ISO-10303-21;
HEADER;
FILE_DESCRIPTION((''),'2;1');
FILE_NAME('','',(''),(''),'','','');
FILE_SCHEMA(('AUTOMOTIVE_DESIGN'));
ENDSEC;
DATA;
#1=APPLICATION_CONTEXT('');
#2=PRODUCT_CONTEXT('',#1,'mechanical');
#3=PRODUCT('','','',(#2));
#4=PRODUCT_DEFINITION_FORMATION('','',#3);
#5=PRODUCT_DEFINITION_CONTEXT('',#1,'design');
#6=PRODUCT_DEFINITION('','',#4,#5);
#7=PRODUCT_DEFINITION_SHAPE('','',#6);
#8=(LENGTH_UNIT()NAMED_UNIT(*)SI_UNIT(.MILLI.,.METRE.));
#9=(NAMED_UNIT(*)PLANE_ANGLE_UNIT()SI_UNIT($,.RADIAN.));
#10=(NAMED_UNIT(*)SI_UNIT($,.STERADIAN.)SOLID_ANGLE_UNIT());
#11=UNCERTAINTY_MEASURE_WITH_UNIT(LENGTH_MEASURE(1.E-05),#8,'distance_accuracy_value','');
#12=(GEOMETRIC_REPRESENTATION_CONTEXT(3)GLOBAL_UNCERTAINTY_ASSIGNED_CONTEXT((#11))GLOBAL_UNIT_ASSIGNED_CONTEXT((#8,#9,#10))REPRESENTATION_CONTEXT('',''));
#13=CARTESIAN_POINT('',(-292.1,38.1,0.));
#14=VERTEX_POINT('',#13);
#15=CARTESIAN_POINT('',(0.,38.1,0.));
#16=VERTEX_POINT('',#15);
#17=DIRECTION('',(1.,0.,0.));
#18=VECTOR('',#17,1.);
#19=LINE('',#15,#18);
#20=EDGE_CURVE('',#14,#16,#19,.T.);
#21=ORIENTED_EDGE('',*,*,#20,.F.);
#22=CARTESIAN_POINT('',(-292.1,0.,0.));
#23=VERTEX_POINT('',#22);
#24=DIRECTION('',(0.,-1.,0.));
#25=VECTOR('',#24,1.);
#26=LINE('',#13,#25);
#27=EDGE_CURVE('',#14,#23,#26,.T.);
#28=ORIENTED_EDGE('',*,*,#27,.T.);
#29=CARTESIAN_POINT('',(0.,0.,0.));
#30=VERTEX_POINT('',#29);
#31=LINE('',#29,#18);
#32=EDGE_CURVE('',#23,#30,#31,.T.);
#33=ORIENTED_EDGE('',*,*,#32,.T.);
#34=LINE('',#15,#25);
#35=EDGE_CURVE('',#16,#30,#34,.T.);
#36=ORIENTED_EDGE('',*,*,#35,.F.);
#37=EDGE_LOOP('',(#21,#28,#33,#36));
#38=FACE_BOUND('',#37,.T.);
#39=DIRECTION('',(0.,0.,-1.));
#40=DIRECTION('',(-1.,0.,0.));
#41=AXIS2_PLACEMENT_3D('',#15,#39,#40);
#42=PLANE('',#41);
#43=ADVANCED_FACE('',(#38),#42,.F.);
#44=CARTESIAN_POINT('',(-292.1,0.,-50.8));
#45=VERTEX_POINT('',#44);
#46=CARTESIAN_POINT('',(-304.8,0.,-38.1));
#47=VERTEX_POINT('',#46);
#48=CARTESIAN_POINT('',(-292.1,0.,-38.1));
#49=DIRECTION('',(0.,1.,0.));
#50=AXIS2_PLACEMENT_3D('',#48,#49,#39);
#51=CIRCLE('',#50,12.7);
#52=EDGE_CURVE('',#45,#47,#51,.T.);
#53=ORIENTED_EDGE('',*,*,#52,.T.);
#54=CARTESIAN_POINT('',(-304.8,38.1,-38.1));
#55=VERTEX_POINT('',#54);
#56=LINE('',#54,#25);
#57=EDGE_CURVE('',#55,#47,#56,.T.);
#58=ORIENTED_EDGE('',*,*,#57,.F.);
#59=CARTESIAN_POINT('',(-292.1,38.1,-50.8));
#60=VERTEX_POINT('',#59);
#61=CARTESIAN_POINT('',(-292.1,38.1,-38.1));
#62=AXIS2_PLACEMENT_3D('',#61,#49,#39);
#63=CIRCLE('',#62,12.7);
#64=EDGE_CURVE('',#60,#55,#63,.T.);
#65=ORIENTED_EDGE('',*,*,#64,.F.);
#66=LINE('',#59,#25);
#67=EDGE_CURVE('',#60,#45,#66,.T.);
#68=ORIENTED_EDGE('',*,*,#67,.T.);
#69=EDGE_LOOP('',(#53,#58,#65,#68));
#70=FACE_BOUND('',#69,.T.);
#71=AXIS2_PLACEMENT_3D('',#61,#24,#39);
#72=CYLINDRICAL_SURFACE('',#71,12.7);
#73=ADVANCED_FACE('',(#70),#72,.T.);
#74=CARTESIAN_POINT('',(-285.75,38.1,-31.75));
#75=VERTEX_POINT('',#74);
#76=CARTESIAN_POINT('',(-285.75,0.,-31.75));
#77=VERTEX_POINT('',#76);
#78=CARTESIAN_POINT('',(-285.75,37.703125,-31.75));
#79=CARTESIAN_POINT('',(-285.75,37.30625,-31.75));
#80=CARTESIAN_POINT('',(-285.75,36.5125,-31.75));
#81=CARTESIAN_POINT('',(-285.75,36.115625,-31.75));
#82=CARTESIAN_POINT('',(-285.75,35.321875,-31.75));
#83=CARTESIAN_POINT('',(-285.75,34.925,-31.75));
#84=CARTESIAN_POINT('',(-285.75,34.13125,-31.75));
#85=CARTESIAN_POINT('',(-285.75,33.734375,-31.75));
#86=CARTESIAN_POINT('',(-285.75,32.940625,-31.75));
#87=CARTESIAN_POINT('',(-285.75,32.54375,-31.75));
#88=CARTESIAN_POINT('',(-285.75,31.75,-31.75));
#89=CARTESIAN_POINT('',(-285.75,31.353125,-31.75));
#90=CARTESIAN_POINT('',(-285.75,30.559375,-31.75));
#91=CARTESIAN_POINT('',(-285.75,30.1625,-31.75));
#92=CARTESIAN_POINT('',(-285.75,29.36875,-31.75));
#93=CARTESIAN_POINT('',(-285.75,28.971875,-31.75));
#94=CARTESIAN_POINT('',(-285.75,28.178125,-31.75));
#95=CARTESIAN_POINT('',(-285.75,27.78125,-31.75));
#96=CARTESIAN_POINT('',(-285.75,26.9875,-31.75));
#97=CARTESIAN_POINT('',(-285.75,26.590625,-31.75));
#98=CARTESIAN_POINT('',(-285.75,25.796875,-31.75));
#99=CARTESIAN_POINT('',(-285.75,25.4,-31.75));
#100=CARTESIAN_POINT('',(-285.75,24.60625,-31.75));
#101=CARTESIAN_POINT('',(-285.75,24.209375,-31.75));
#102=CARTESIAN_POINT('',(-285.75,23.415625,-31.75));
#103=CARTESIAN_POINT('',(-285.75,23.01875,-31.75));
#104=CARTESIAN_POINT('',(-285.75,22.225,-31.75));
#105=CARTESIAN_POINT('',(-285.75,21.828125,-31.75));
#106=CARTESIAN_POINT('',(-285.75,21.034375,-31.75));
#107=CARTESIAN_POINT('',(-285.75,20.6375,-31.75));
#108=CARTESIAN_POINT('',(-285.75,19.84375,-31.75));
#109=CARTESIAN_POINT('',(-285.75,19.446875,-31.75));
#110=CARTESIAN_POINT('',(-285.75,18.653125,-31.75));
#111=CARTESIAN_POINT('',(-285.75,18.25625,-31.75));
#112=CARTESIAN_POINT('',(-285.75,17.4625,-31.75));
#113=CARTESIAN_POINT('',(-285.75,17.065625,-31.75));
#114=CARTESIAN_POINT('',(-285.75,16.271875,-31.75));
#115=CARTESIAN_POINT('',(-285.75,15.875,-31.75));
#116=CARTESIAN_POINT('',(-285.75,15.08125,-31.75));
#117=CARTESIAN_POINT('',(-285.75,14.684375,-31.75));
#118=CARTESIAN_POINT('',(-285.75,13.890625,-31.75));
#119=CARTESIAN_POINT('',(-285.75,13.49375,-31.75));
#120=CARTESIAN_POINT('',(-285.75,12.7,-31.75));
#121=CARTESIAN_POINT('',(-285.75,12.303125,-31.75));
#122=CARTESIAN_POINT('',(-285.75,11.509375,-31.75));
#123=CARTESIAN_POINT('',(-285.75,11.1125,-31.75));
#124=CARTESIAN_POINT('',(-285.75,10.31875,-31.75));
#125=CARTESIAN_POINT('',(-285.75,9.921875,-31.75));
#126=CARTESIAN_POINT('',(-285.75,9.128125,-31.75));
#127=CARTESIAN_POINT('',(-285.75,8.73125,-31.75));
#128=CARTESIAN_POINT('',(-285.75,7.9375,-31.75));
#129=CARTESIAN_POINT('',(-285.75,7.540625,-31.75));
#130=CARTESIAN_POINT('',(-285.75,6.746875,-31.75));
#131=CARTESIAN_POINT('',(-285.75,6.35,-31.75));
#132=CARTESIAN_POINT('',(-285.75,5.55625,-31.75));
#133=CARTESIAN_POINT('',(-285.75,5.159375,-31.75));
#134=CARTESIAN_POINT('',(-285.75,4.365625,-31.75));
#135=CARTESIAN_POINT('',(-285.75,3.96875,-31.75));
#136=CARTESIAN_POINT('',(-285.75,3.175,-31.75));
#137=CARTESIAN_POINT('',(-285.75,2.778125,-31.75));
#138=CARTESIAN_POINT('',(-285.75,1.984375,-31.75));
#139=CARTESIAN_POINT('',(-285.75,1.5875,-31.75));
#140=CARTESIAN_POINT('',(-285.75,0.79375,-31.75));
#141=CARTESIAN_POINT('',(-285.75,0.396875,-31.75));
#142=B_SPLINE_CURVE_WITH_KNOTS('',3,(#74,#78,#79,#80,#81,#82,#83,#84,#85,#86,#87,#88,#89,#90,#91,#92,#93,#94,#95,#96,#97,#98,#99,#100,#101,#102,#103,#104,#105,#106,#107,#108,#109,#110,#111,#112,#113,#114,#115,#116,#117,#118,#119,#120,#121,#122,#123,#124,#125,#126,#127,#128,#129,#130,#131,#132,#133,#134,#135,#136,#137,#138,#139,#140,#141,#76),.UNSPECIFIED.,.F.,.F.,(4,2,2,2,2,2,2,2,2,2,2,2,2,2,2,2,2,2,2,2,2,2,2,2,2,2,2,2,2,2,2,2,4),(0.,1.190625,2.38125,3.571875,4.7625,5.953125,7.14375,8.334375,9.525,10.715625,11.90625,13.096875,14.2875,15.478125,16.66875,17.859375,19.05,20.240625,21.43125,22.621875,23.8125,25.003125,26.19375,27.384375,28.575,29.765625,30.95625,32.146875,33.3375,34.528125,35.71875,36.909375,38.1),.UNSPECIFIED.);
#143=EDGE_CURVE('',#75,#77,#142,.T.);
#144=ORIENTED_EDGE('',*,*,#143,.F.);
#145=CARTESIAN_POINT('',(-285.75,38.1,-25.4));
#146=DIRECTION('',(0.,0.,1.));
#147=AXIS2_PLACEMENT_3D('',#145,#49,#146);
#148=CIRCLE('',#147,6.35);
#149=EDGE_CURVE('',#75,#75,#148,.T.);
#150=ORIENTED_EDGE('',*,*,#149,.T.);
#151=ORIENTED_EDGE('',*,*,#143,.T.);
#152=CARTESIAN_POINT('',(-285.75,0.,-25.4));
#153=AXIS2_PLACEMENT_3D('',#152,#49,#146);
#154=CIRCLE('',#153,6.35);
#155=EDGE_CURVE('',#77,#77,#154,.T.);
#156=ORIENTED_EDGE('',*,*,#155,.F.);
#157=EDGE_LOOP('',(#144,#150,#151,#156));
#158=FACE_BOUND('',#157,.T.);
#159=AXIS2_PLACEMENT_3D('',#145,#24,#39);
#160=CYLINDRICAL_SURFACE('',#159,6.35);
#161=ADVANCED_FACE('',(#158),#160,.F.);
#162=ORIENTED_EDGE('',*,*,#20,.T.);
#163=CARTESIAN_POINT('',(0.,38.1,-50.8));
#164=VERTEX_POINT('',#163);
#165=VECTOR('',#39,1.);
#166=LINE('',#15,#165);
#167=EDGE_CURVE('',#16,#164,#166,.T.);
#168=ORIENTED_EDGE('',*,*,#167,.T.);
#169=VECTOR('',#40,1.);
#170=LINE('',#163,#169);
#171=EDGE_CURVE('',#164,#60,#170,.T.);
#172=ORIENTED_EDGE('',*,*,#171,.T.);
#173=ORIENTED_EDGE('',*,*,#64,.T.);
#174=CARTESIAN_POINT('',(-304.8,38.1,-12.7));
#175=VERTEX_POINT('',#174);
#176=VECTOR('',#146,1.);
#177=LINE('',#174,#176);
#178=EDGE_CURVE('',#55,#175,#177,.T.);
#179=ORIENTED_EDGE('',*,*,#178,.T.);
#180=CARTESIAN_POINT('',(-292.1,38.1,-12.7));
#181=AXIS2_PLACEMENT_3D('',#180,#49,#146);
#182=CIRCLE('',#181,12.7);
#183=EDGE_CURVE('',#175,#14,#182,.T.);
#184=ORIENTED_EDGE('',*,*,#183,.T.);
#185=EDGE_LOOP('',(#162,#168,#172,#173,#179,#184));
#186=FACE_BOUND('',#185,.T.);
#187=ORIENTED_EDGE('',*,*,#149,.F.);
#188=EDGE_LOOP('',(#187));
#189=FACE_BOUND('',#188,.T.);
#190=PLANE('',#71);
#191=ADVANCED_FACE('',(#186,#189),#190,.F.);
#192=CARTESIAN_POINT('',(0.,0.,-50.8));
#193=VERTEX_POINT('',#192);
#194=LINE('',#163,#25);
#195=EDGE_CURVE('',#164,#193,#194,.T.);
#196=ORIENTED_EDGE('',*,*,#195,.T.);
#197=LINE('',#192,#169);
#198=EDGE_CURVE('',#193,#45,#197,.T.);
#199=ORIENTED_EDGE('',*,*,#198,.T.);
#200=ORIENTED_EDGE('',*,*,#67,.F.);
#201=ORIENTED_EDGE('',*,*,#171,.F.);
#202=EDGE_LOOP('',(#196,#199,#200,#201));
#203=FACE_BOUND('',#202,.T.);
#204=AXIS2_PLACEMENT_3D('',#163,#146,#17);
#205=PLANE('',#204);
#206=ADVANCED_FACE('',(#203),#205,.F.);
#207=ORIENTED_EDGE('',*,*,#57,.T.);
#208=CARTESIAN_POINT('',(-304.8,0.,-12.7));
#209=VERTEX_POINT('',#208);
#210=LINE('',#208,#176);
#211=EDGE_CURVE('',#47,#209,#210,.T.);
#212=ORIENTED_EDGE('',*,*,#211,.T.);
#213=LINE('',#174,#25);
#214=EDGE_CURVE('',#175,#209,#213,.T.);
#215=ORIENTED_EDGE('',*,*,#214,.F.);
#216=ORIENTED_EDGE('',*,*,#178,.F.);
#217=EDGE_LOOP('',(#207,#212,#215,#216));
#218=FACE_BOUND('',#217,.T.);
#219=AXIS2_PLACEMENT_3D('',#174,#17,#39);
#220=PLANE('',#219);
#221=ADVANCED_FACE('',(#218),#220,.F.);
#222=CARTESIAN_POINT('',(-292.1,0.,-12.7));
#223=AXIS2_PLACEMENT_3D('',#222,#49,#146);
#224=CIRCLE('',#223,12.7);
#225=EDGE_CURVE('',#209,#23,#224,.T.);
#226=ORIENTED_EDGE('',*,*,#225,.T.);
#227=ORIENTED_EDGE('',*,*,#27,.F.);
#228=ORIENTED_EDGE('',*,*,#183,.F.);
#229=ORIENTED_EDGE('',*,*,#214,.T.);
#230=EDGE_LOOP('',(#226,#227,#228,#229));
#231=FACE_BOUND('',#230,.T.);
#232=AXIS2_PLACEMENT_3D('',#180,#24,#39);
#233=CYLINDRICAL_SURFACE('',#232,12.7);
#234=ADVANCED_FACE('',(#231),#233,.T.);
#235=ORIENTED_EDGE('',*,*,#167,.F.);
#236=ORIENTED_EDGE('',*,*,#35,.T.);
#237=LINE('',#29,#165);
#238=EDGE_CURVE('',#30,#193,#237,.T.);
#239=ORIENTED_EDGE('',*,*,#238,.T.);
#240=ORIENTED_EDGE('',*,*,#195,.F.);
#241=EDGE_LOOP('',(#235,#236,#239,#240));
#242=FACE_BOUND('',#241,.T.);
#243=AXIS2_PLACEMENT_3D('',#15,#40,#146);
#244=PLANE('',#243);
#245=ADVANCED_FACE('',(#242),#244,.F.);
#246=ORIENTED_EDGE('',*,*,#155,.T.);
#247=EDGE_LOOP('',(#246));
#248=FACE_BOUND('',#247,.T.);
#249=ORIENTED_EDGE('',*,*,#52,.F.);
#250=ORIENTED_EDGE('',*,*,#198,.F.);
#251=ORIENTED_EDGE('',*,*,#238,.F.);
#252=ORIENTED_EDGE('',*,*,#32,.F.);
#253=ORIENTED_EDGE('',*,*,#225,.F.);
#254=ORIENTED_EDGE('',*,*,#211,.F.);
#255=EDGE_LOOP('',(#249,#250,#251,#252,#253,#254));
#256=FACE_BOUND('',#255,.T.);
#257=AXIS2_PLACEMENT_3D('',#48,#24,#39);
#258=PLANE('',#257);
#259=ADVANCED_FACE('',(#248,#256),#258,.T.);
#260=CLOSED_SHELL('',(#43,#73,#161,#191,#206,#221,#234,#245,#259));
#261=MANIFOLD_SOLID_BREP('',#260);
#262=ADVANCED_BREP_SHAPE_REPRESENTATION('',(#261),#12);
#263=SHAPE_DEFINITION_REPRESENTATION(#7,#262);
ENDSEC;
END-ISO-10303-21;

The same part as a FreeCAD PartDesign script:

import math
import FreeCAD as App
import Part
import Sketcher

V = App.Vector
Q = App.Units.Quantity

doc = App.newDocument("Part")
body = doc.addObject("PartDesign::Body", "Body")

# Sketch on XZ plane
sketch1 = doc.addObject("Sketcher::SketchObject", "Sketch")
body.addObject(sketch1)
sketch1.AttachmentSupport = (doc.XZ_Plane, [""])
sketch1.MapMode = "FlatFace"
sketch1.addGeometry([
    Part.LineSegment(V(-292.1, 0, 0), V(0, 0, 0)),  # 0
    Part.LineSegment(V(0, 0, 0), V(0, -50.8, 0)),  # 1
    Part.LineSegment(V(0, -50.8, 0), V(-292.1, -50.8, 0)),  # 2
    Part.ArcOfCircle(Part.Circle(V(-292.1, -38.1, 0), V(0, 0, 1), 12.7), math.radians(180), math.radians(270)),  # 3
    Part.LineSegment(V(-304.8, -38.1, 0), V(-304.8, -12.7, 0)),  # 4
    Part.ArcOfCircle(Part.Circle(V(-292.1, -12.7, 0), V(0, 0, 1), 12.7), math.radians(90), math.radians(180)),  # 5
    Part.Circle(V(-285.75, -25.4, 0), V(0, 0, 1), 6.35),  # 6
], False)
sketch1.addConstraint([
    Sketcher.Constraint("Coincident", 0, 2, 1, 1),
    Sketcher.Constraint("Coincident", 1, 2, 2, 1),
    Sketcher.Constraint("Tangent", 2, 2, 3, 2),
    Sketcher.Constraint("Tangent", 3, 1, 4, 1),
    Sketcher.Constraint("Tangent", 4, 2, 5, 2),
    Sketcher.Constraint("Tangent", 5, 1, 0, 1),
    Sketcher.Constraint("Horizontal", 0),
    Sketcher.Constraint("Vertical", 1),
    Sketcher.Constraint("Horizontal", 2),
    Sketcher.Constraint("Vertical", 4),
    Sketcher.Constraint("Coincident", 0, 2, -1, 1),
    Sketcher.Constraint("Equal", 3, 5),
    Sketcher.Constraint("Diameter", 6, Q("0.5 in")),
    Sketcher.Constraint("Radius", 3, Q("0.5 in")),
    Sketcher.Constraint("DistanceY", 1, 2, 1, 1, Q("2 in")),
    Sketcher.Constraint("DistanceX", 0, 1, 0, 2, Q("11.5 in")),
    Sketcher.Constraint("DistanceY", 6, 3, -1, 1, Q("1 in")),
    Sketcher.Constraint("DistanceX", 6, 3, -1, 1, Q("11.25 in")),
])
pad1 = doc.addObject("PartDesign::Pad", "Pad")
body.addObject(pad1)
pad1.Profile = sketch1
pad1.Length = Q("1.5 in")
pad1.Reversed = True

doc.recompute()
